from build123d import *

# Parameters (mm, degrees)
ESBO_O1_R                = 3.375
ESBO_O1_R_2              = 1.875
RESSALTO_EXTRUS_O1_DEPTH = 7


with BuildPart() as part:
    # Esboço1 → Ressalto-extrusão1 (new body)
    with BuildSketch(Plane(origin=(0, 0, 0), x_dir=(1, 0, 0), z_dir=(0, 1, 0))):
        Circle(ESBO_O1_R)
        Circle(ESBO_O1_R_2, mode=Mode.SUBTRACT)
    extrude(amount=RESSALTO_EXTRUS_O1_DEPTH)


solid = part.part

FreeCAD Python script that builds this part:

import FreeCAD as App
import Part
import Sketcher

V = App.Vector

doc = App.newDocument("Part")
body = doc.addObject("PartDesign::Body", "Body")

# Sketch on XZ plane
sketch1 = body.newObject("Sketcher::SketchObject", "Sketch")
sketch1.AttachmentSupport = (doc.getObject("XZ_Plane"), [""])
sketch1.MapMode = "FlatFace"
sketch1.addGeometry(Part.Circle(V(0, 0, 0), V(0, 0, 1), 3.4), False)
sketch1.addGeometry(Part.Circle(V(0, 0, 0), V(0, 0, 1), 1.9), False)
sketch1.addConstraint(Sketcher.Constraint("Coincident", 0, 3, -1, 1))
sketch1.addConstraint(Sketcher.Constraint("Coincident", 1, 3, -1, 1))
sketch1.addConstraint(Sketcher.Constraint("Diameter", 0, 6.75))
sketch1.addConstraint(Sketcher.Constraint("Diameter", 1, 3.75))
pad1 = body.newObject("PartDesign::Pad", "Pad")
pad1.Profile = sketch1
pad1.Length = 7
pad1.Reversed = True

doc.recompute()
